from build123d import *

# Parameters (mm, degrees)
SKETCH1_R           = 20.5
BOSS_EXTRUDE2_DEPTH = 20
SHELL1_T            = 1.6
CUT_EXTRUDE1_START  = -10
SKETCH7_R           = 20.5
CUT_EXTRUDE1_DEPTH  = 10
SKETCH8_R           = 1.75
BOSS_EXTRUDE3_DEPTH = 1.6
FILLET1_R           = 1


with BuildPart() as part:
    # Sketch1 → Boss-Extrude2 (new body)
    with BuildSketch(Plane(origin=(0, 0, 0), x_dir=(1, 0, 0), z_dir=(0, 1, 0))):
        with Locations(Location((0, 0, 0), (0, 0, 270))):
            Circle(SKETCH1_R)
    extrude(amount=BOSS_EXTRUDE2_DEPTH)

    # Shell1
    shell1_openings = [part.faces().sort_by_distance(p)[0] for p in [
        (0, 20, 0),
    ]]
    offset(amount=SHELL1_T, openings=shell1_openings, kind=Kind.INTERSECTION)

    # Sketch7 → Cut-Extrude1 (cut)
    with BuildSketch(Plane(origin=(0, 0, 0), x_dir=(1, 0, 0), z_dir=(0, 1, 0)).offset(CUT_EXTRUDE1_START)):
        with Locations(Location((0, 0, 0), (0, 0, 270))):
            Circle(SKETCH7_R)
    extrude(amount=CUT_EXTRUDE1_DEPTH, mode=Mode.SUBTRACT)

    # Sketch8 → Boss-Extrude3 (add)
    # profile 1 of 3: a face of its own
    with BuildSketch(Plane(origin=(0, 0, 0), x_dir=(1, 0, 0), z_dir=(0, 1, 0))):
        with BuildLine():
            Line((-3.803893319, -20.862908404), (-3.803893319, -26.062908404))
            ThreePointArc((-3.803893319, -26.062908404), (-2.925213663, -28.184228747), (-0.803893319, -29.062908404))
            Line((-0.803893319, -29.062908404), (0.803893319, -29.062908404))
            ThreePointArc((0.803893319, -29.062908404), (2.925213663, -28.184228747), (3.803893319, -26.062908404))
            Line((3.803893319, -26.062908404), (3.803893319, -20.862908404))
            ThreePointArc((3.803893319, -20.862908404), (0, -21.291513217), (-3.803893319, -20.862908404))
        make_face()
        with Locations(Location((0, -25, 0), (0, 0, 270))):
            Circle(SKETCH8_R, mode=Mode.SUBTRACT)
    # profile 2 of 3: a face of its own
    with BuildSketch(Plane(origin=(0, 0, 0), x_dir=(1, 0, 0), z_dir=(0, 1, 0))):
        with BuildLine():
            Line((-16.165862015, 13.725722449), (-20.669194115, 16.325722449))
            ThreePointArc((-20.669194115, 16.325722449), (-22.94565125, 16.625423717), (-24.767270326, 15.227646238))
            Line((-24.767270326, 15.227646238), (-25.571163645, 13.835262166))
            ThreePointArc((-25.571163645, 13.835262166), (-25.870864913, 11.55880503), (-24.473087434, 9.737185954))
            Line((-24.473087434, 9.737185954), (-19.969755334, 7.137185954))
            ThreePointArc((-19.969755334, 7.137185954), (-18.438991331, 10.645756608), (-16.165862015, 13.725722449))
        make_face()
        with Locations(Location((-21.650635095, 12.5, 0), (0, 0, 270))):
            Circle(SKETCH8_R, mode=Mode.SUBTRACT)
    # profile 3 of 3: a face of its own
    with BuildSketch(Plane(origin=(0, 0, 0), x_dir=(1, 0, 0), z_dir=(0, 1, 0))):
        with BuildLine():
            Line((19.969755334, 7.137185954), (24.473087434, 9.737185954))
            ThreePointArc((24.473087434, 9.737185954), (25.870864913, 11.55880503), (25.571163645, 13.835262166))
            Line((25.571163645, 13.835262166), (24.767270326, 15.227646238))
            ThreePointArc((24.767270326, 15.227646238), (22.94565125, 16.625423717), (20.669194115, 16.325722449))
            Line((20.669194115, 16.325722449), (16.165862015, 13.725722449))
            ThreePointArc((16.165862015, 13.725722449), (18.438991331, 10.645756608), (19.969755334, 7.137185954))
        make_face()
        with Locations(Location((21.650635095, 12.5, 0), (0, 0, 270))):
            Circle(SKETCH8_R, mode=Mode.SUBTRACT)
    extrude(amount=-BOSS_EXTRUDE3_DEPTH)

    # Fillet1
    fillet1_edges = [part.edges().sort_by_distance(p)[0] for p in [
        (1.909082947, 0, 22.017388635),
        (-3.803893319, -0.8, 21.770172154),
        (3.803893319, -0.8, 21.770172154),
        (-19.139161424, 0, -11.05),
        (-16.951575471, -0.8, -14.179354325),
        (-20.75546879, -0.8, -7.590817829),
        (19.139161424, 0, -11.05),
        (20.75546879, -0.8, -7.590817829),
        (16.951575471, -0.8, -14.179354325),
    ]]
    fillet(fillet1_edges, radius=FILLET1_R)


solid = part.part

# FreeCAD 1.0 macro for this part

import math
import FreeCAD as App
import Part
import Sketcher
Q = App.Units.Quantity


def edges_at(feature, points):
    """Names of the edges that pass closest to the given points."""
    edges = feature.Shape.Edges
    near = lambda p: min(range(len(edges)), key=lambda i: edges[i].distToShape(Part.Vertex(*p))[0])
    return sorted({f"Edge{near(p) + 1}" for p in points})


def faces_at(feature, points):
    """Names of the faces that lie closest to the given points."""
    faces = feature.Shape.Faces
    near = lambda p: min(range(len(faces)), key=lambda i: faces[i].distToShape(Part.Vertex(*p))[0])
    return sorted({f"Face{near(p) + 1}" for p in points})

doc = App.newDocument("Part")
params = doc.addObject("Spreadsheet::Sheet", "Params")
for row, (alias, value) in enumerate([
    ("sketch1_diameter", "41 mm"),
    ("pad1_length", "20 mm"),
    ("thickness_wall", "1.6 mm"),
    ("sketch2_diameter", "41 mm"),
    ("pocket1_length", "10 mm"),
    ("sketch3_radius", "3 mm"),
    ("sketch3_diameter", "3.5 mm"),
    ("sketch3_height", "5.2 mm"),
    ("sketch3_length", "5.2 mm"),
    ("pad2_length", "1.6 mm"),
    ("fillet_radius", "1 mm"),
], start=1):
    params.set(f"A{row}", alias)
    params.set(f"B{row}", "=" + value)
    params.setAlias(f"B{row}", alias)

body = doc.addObject("PartDesign::Body", "Body")

sketch1 = body.newObject("Sketcher::SketchObject", "Sketch")
sketch1.AttachmentSupport = (doc.getObject("XZ_Plane"), [""])
sketch1.MapMode = "FlatFace"
sketch1.addGeometry(Part.Circle(App.Vector(0, 0, 0), App.Vector(0, 0, 1), 20), False)
sketch1.addConstraint(Sketcher.Constraint("Coincident", 0, 3, -1, 1))
sketch1.addConstraint(Sketcher.Constraint("Diameter", 0, Q("41 mm")))
sketch1.setExpression("Constraints[1]", "Params.sketch1_diameter")
pad1 = body.newObject("PartDesign::Pad", "Pad")
pad1.Profile = sketch1
pad1.setExpression("Length", "Params.pad1_length")
pad1.Reversed = True
doc.recompute()

thickness = body.newObject("PartDesign::Thickness", "Thickness")
thickness.Base = (pad1, faces_at(pad1, [(0, 20, 0)]))
thickness.setExpression("Value", "Params.thickness_wall")
thickness.Reversed = False
thickness.Join = "Intersection"

sketch2 = body.newObject("Sketcher::SketchObject", "Sketch001")
sketch2.AttachmentSupport = (doc.getObject("XZ_Plane"), [""])
sketch2.MapMode = "FlatFace"
sketch2.AttachmentOffset = App.Placement(App.Vector(0, 0, 10), App.Rotation())
sketch2.addGeometry(Part.Circle(App.Vector(0, 0, 0), App.Vector(0, 0, 1), 20), False)
sketch2.addConstraint(Sketcher.Constraint("Coincident", 0, 3, -1, 1))
sketch2.addConstraint(Sketcher.Constraint("Diameter", 0, Q("41 mm")))
sketch2.setExpression("Constraints[1]", "Params.sketch2_diameter")
pocket1 = body.newObject("PartDesign::Pocket", "Pocket")
pocket1.Profile = sketch2
pocket1.setExpression("Length", "Params.pocket1_length")

sketch3 = body.newObject("Sketcher::SketchObject", "Sketch002")
sketch3.AttachmentSupport = (doc.getObject("XZ_Plane"), [""])
sketch3.MapMode = "FlatFace"
sketch3.addGeometry(Part.LineSegment(App.Vector(-3.8, 20.9, 0), App.Vector(-3.8, 26.1, 0)), False)
sketch3.addGeometry(Part.ArcOfCircle(Part.Circle(App.Vector(-0.8, 26.1, 0), App.Vector(0, 0, 1), 3), math.radians(90), math.radians(180)), False)
sketch3.addGeometry(Part.LineSegment(App.Vector(-0.8, 29.1, 0), App.Vector(0.8, 29.1, 0)), False)
sketch3.addGeometry(Part.ArcOfCircle(Part.Circle(App.Vector(0.8, 26.1, 0), App.Vector(0, 0, 1), 3), math.radians(0), math.radians(90)), False)
sketch3.addGeometry(Part.LineSegment(App.Vector(3.8, 26.1, 0), App.Vector(3.8, 20.9, 0)), False)
sketch3.addGeometry(Part.ArcOfCircle(Part.Circle(App.Vector(0, 4.2, 0), App.Vector(0, 0, 1), 17.1), math.radians(77), math.radians(103)), False)
sketch3.addGeometry(Part.Circle(App.Vector(0, 25, 0), App.Vector(0, 0, 1), 1.8), False)
sketch3.addGeometry(Part.LineSegment(App.Vector(-16.2, -13.7, 0), App.Vector(-20.7, -16.3, 0)), False)
sketch3.addGeometry(Part.ArcOfCircle(Part.Circle(App.Vector(-22.2, -13.7, 0), App.Vector(0, 0, 1), 3), math.radians(-150), math.radians(-60)), False)
sketch3.addGeometry(Part.LineSegment(App.Vector(-24.8, -15.2, 0), App.Vector(-25.6, -13.8, 0)), False)
sketch3.addGeometry(Part.ArcOfCircle(Part.Circle(App.Vector(-23, -12.3, 0), App.Vector(0, 0, 1), 3), math.radians(120), math.radians(210)), False)
sketch3.addGeometry(Part.LineSegment(App.Vector(-24.5, -9.7, 0), App.Vector(-20, -7.1, 0)), False)
sketch3.addGeometry(Part.ArcOfCircle(Part.Circle(App.Vector(-3.6, -2.1, 0), App.Vector(0, 0, 1), 17.1), math.radians(-163), math.radians(-137)), False)
sketch3.addGeometry(Part.Circle(App.Vector(-21.7, -12.5, 0), App.Vector(0, 0, 1), 1.8), False)
sketch3.addGeometry(Part.LineSegment(App.Vector(20, -7.1, 0), App.Vector(24.5, -9.7, 0)), False)
sketch3.addGeometry(Part.ArcOfCircle(Part.Circle(App.Vector(23, -12.3, 0), App.Vector(0, 0, 1), 3), math.radians(-30), math.radians(60)), False)
sketch3.addGeometry(Part.LineSegment(App.Vector(25.6, -13.8, 0), App.Vector(24.8, -15.2, 0)), False)
sketch3.addGeometry(Part.ArcOfCircle(Part.Circle(App.Vector(22.2, -13.7, 0), App.Vector(0, 0, 1), 3), math.radians(-120), math.radians(-30)), False)
sketch3.addGeometry(Part.LineSegment(App.Vector(20.7, -16.3, 0), App.Vector(16.2, -13.7, 0)), False)
sketch3.addGeometry(Part.ArcOfCircle(Part.Circle(App.Vector(3.6, -2.1, 0), App.Vector(0, 0, 1), 17.1), math.radians(-43), math.radians(-17)), False)
sketch3.addGeometry(Part.Circle(App.Vector(21.7, -12.5, 0), App.Vector(0, 0, 1), 1.8), False)
sketch3.addConstraint(Sketcher.Constraint("Tangent", 0, 2, 1, 2))
sketch3.addConstraint(Sketcher.Constraint("Tangent", 1, 1, 2, 1))
sketch3.addConstraint(Sketcher.Constraint("Tangent", 2, 2, 3, 2))
sketch3.addConstraint(Sketcher.Constraint("Tangent", 3, 1, 4, 1))
sketch3.addConstraint(Sketcher.Constraint("Coincident", 4, 2, 5, 1))
sketch3.addConstraint(Sketcher.Constraint("Coincident", 5, 2, 0, 1))
sketch3.addConstraint(Sketcher.Constraint("Tangent", 7, 2, 8, 2))
sketch3.addConstraint(Sketcher.Constraint("Tangent", 8, 1, 9, 1))
sketch3.addConstraint(Sketcher.Constraint("Tangent", 9, 2, 10, 2))
sketch3.addConstraint(Sketcher.Constraint("Tangent", 10, 1, 11, 1))
sketch3.addConstraint(Sketcher.Constraint("Coincident", 11, 2, 12, 1))
sketch3.addConstraint(Sketcher.Constraint("Coincident", 12, 2, 7, 1))
sketch3.addConstraint(Sketcher.Constraint("Tangent", 14, 2, 15, 2))
sketch3.addConstraint(Sketcher.Constraint("Tangent", 15, 1, 16, 1))
sketch3.addConstraint(Sketcher.Constraint("Tangent", 16, 2, 17, 2))
sketch3.addConstraint(Sketcher.Constraint("Tangent", 17, 1, 18, 1))
sketch3.addConstraint(Sketcher.Constraint("Coincident", 18, 2, 19, 1))
sketch3.addConstraint(Sketcher.Constraint("Coincident", 19, 2, 14, 1))
sketch3.addConstraint(Sketcher.Constraint("Vertical", 0))
sketch3.addConstraint(Sketcher.Constraint("Horizontal", 2))
sketch3.addConstraint(Sketcher.Constraint("Vertical", 4))
sketch3.addConstraint(Sketcher.Constraint("Equal", 1, 3))
sketch3.addConstraint(Sketcher.Constraint("Equal", 3, 8))
sketch3.addConstraint(Sketcher.Constraint("Equal", 8, 10))
sketch3.addConstraint(Sketcher.Constraint("Equal", 5, 12))
sketch3.addConstraint(Sketcher.Constraint("Equal", 6, 13))
sketch3.addConstraint(Sketcher.Constraint("Equal", 10, 15))
sketch3.addConstraint(Sketcher.Constraint("Equal", 15, 17))
sketch3.addConstraint(Sketcher.Constraint("Equal", 12, 19))
sketch3.addConstraint(Sketcher.Constraint("Equal", 13, 20))
sketch3.addConstraint(Sketcher.Constraint("Symmetric", 10, 3, 15, 3, -2))
sketch3.addConstraint(Sketcher.Constraint("Symmetric", 8, 3, 17, 3, -2))
sketch3.addConstraint(Sketcher.Constraint("Symmetric", 12, 3, 19, 3, -2))
sketch3.addConstraint(Sketcher.Constraint("Symmetric", 13, 3, 20, 3, -2))
sketch3.addConstraint(Sketcher.Constraint("Symmetric", 4, 2, 5, 2, -2))
sketch3.addConstraint(Sketcher.Constraint("PointOnObject", 6, 3, -2))
sketch3.addConstraint(Sketcher.Constraint("Perpendicular", 7, 9))
sketch3.addConstraint(Sketcher.Constraint("Perpendicular", 9, 11))
sketch3.addConstraint(Sketcher.Constraint("Perpendicular", 14, 16))
sketch3.addConstraint(Sketcher.Constraint("Perpendicular", 16, 18))
sketch3.addConstraint(Sketcher.Constraint("Equal", 7, 11))
sketch3.addConstraint(Sketcher.Constraint("Radius", 1, Q("3 mm")))
sketch3.addConstraint(Sketcher.Constraint("Diameter", 6, Q("3.5 mm")))
sketch3.addConstraint(Sketcher.Constraint("Angle", 7, Q("-150 deg")))
sketch3.addConstraint(Sketcher.Constraint("DistanceY", 0, 1, 0, 2, Q("5.2 mm")))
sketch3.addConstraint(Sketcher.Constraint("DistanceY", -1, 1, 6, 3, Q("25 mm")))
sketch3.addConstraint(Sketcher.Constraint("Distance", 7, Q("5.2 mm")))
sketch3.addConstraint(Sketcher.Constraint("DistanceY", 13, 3, -1, 1, Q("12.5 mm")))
sketch3.addConstraint(Sketcher.Constraint("Radius", 5, Q("17.094193 mm")))
sketch3.addConstraint(Sketcher.Constraint("DistanceX", 8, 3, 1, 3, Q("21.365301 mm")))
sketch3.addConstraint(Sketcher.Constraint("DistanceX", 10, 3, 12, 3, Q("19.338101 mm")))
sketch3.addConstraint(Sketcher.Constraint("DistanceX", 2, 1, 2, 2, Q("1.607787 mm")))
sketch3.addConstraint(Sketcher.Constraint("DistanceY", -1, 1, 1, 3, Q("26.062908 mm")))
sketch3.addConstraint(Sketcher.Constraint("DistanceY", 12, 3, -1, 1, Q("2.09866 mm")))
sketch3.addConstraint(Sketcher.Constraint("DistanceX", 8, 3, 13, 3, Q("0.518559 mm")))
sketch3.setExpression("Constraints[41]", "Params.sketch3_radius")
sketch3.setExpression("Constraints[42]", "Params.sketch3_diameter")
sketch3.setExpression("Constraints[44]", "Params.sketch3_height")
sketch3.setExpression("Constraints[46]", "Params.sketch3_length")
pad2 = body.newObject("PartDesign::Pad", "Pad001")
pad2.Profile = sketch3
pad2.setExpression("Length", "Params.pad2_length")
doc.recompute()

fillet = body.newObject("PartDesign::Fillet", "Fillet")
fillet.Base = (pad2, edges_at(pad2, [
    (1.909, 0, 22.017),
    (-3.804, -0.8, 21.77),
    (3.804, -0.8, 21.77),
    (-19.139, 0, -11.05),
    (-16.952, -0.8, -14.179),
    (-20.755, -0.8, -7.591),
    (19.139, 0, -11.05),
    (20.755, -0.8, -7.591),
    (16.952, -0.8, -14.179),
]))
fillet.setExpression("Radius", "Params.fillet_radius")

doc.recompute()
